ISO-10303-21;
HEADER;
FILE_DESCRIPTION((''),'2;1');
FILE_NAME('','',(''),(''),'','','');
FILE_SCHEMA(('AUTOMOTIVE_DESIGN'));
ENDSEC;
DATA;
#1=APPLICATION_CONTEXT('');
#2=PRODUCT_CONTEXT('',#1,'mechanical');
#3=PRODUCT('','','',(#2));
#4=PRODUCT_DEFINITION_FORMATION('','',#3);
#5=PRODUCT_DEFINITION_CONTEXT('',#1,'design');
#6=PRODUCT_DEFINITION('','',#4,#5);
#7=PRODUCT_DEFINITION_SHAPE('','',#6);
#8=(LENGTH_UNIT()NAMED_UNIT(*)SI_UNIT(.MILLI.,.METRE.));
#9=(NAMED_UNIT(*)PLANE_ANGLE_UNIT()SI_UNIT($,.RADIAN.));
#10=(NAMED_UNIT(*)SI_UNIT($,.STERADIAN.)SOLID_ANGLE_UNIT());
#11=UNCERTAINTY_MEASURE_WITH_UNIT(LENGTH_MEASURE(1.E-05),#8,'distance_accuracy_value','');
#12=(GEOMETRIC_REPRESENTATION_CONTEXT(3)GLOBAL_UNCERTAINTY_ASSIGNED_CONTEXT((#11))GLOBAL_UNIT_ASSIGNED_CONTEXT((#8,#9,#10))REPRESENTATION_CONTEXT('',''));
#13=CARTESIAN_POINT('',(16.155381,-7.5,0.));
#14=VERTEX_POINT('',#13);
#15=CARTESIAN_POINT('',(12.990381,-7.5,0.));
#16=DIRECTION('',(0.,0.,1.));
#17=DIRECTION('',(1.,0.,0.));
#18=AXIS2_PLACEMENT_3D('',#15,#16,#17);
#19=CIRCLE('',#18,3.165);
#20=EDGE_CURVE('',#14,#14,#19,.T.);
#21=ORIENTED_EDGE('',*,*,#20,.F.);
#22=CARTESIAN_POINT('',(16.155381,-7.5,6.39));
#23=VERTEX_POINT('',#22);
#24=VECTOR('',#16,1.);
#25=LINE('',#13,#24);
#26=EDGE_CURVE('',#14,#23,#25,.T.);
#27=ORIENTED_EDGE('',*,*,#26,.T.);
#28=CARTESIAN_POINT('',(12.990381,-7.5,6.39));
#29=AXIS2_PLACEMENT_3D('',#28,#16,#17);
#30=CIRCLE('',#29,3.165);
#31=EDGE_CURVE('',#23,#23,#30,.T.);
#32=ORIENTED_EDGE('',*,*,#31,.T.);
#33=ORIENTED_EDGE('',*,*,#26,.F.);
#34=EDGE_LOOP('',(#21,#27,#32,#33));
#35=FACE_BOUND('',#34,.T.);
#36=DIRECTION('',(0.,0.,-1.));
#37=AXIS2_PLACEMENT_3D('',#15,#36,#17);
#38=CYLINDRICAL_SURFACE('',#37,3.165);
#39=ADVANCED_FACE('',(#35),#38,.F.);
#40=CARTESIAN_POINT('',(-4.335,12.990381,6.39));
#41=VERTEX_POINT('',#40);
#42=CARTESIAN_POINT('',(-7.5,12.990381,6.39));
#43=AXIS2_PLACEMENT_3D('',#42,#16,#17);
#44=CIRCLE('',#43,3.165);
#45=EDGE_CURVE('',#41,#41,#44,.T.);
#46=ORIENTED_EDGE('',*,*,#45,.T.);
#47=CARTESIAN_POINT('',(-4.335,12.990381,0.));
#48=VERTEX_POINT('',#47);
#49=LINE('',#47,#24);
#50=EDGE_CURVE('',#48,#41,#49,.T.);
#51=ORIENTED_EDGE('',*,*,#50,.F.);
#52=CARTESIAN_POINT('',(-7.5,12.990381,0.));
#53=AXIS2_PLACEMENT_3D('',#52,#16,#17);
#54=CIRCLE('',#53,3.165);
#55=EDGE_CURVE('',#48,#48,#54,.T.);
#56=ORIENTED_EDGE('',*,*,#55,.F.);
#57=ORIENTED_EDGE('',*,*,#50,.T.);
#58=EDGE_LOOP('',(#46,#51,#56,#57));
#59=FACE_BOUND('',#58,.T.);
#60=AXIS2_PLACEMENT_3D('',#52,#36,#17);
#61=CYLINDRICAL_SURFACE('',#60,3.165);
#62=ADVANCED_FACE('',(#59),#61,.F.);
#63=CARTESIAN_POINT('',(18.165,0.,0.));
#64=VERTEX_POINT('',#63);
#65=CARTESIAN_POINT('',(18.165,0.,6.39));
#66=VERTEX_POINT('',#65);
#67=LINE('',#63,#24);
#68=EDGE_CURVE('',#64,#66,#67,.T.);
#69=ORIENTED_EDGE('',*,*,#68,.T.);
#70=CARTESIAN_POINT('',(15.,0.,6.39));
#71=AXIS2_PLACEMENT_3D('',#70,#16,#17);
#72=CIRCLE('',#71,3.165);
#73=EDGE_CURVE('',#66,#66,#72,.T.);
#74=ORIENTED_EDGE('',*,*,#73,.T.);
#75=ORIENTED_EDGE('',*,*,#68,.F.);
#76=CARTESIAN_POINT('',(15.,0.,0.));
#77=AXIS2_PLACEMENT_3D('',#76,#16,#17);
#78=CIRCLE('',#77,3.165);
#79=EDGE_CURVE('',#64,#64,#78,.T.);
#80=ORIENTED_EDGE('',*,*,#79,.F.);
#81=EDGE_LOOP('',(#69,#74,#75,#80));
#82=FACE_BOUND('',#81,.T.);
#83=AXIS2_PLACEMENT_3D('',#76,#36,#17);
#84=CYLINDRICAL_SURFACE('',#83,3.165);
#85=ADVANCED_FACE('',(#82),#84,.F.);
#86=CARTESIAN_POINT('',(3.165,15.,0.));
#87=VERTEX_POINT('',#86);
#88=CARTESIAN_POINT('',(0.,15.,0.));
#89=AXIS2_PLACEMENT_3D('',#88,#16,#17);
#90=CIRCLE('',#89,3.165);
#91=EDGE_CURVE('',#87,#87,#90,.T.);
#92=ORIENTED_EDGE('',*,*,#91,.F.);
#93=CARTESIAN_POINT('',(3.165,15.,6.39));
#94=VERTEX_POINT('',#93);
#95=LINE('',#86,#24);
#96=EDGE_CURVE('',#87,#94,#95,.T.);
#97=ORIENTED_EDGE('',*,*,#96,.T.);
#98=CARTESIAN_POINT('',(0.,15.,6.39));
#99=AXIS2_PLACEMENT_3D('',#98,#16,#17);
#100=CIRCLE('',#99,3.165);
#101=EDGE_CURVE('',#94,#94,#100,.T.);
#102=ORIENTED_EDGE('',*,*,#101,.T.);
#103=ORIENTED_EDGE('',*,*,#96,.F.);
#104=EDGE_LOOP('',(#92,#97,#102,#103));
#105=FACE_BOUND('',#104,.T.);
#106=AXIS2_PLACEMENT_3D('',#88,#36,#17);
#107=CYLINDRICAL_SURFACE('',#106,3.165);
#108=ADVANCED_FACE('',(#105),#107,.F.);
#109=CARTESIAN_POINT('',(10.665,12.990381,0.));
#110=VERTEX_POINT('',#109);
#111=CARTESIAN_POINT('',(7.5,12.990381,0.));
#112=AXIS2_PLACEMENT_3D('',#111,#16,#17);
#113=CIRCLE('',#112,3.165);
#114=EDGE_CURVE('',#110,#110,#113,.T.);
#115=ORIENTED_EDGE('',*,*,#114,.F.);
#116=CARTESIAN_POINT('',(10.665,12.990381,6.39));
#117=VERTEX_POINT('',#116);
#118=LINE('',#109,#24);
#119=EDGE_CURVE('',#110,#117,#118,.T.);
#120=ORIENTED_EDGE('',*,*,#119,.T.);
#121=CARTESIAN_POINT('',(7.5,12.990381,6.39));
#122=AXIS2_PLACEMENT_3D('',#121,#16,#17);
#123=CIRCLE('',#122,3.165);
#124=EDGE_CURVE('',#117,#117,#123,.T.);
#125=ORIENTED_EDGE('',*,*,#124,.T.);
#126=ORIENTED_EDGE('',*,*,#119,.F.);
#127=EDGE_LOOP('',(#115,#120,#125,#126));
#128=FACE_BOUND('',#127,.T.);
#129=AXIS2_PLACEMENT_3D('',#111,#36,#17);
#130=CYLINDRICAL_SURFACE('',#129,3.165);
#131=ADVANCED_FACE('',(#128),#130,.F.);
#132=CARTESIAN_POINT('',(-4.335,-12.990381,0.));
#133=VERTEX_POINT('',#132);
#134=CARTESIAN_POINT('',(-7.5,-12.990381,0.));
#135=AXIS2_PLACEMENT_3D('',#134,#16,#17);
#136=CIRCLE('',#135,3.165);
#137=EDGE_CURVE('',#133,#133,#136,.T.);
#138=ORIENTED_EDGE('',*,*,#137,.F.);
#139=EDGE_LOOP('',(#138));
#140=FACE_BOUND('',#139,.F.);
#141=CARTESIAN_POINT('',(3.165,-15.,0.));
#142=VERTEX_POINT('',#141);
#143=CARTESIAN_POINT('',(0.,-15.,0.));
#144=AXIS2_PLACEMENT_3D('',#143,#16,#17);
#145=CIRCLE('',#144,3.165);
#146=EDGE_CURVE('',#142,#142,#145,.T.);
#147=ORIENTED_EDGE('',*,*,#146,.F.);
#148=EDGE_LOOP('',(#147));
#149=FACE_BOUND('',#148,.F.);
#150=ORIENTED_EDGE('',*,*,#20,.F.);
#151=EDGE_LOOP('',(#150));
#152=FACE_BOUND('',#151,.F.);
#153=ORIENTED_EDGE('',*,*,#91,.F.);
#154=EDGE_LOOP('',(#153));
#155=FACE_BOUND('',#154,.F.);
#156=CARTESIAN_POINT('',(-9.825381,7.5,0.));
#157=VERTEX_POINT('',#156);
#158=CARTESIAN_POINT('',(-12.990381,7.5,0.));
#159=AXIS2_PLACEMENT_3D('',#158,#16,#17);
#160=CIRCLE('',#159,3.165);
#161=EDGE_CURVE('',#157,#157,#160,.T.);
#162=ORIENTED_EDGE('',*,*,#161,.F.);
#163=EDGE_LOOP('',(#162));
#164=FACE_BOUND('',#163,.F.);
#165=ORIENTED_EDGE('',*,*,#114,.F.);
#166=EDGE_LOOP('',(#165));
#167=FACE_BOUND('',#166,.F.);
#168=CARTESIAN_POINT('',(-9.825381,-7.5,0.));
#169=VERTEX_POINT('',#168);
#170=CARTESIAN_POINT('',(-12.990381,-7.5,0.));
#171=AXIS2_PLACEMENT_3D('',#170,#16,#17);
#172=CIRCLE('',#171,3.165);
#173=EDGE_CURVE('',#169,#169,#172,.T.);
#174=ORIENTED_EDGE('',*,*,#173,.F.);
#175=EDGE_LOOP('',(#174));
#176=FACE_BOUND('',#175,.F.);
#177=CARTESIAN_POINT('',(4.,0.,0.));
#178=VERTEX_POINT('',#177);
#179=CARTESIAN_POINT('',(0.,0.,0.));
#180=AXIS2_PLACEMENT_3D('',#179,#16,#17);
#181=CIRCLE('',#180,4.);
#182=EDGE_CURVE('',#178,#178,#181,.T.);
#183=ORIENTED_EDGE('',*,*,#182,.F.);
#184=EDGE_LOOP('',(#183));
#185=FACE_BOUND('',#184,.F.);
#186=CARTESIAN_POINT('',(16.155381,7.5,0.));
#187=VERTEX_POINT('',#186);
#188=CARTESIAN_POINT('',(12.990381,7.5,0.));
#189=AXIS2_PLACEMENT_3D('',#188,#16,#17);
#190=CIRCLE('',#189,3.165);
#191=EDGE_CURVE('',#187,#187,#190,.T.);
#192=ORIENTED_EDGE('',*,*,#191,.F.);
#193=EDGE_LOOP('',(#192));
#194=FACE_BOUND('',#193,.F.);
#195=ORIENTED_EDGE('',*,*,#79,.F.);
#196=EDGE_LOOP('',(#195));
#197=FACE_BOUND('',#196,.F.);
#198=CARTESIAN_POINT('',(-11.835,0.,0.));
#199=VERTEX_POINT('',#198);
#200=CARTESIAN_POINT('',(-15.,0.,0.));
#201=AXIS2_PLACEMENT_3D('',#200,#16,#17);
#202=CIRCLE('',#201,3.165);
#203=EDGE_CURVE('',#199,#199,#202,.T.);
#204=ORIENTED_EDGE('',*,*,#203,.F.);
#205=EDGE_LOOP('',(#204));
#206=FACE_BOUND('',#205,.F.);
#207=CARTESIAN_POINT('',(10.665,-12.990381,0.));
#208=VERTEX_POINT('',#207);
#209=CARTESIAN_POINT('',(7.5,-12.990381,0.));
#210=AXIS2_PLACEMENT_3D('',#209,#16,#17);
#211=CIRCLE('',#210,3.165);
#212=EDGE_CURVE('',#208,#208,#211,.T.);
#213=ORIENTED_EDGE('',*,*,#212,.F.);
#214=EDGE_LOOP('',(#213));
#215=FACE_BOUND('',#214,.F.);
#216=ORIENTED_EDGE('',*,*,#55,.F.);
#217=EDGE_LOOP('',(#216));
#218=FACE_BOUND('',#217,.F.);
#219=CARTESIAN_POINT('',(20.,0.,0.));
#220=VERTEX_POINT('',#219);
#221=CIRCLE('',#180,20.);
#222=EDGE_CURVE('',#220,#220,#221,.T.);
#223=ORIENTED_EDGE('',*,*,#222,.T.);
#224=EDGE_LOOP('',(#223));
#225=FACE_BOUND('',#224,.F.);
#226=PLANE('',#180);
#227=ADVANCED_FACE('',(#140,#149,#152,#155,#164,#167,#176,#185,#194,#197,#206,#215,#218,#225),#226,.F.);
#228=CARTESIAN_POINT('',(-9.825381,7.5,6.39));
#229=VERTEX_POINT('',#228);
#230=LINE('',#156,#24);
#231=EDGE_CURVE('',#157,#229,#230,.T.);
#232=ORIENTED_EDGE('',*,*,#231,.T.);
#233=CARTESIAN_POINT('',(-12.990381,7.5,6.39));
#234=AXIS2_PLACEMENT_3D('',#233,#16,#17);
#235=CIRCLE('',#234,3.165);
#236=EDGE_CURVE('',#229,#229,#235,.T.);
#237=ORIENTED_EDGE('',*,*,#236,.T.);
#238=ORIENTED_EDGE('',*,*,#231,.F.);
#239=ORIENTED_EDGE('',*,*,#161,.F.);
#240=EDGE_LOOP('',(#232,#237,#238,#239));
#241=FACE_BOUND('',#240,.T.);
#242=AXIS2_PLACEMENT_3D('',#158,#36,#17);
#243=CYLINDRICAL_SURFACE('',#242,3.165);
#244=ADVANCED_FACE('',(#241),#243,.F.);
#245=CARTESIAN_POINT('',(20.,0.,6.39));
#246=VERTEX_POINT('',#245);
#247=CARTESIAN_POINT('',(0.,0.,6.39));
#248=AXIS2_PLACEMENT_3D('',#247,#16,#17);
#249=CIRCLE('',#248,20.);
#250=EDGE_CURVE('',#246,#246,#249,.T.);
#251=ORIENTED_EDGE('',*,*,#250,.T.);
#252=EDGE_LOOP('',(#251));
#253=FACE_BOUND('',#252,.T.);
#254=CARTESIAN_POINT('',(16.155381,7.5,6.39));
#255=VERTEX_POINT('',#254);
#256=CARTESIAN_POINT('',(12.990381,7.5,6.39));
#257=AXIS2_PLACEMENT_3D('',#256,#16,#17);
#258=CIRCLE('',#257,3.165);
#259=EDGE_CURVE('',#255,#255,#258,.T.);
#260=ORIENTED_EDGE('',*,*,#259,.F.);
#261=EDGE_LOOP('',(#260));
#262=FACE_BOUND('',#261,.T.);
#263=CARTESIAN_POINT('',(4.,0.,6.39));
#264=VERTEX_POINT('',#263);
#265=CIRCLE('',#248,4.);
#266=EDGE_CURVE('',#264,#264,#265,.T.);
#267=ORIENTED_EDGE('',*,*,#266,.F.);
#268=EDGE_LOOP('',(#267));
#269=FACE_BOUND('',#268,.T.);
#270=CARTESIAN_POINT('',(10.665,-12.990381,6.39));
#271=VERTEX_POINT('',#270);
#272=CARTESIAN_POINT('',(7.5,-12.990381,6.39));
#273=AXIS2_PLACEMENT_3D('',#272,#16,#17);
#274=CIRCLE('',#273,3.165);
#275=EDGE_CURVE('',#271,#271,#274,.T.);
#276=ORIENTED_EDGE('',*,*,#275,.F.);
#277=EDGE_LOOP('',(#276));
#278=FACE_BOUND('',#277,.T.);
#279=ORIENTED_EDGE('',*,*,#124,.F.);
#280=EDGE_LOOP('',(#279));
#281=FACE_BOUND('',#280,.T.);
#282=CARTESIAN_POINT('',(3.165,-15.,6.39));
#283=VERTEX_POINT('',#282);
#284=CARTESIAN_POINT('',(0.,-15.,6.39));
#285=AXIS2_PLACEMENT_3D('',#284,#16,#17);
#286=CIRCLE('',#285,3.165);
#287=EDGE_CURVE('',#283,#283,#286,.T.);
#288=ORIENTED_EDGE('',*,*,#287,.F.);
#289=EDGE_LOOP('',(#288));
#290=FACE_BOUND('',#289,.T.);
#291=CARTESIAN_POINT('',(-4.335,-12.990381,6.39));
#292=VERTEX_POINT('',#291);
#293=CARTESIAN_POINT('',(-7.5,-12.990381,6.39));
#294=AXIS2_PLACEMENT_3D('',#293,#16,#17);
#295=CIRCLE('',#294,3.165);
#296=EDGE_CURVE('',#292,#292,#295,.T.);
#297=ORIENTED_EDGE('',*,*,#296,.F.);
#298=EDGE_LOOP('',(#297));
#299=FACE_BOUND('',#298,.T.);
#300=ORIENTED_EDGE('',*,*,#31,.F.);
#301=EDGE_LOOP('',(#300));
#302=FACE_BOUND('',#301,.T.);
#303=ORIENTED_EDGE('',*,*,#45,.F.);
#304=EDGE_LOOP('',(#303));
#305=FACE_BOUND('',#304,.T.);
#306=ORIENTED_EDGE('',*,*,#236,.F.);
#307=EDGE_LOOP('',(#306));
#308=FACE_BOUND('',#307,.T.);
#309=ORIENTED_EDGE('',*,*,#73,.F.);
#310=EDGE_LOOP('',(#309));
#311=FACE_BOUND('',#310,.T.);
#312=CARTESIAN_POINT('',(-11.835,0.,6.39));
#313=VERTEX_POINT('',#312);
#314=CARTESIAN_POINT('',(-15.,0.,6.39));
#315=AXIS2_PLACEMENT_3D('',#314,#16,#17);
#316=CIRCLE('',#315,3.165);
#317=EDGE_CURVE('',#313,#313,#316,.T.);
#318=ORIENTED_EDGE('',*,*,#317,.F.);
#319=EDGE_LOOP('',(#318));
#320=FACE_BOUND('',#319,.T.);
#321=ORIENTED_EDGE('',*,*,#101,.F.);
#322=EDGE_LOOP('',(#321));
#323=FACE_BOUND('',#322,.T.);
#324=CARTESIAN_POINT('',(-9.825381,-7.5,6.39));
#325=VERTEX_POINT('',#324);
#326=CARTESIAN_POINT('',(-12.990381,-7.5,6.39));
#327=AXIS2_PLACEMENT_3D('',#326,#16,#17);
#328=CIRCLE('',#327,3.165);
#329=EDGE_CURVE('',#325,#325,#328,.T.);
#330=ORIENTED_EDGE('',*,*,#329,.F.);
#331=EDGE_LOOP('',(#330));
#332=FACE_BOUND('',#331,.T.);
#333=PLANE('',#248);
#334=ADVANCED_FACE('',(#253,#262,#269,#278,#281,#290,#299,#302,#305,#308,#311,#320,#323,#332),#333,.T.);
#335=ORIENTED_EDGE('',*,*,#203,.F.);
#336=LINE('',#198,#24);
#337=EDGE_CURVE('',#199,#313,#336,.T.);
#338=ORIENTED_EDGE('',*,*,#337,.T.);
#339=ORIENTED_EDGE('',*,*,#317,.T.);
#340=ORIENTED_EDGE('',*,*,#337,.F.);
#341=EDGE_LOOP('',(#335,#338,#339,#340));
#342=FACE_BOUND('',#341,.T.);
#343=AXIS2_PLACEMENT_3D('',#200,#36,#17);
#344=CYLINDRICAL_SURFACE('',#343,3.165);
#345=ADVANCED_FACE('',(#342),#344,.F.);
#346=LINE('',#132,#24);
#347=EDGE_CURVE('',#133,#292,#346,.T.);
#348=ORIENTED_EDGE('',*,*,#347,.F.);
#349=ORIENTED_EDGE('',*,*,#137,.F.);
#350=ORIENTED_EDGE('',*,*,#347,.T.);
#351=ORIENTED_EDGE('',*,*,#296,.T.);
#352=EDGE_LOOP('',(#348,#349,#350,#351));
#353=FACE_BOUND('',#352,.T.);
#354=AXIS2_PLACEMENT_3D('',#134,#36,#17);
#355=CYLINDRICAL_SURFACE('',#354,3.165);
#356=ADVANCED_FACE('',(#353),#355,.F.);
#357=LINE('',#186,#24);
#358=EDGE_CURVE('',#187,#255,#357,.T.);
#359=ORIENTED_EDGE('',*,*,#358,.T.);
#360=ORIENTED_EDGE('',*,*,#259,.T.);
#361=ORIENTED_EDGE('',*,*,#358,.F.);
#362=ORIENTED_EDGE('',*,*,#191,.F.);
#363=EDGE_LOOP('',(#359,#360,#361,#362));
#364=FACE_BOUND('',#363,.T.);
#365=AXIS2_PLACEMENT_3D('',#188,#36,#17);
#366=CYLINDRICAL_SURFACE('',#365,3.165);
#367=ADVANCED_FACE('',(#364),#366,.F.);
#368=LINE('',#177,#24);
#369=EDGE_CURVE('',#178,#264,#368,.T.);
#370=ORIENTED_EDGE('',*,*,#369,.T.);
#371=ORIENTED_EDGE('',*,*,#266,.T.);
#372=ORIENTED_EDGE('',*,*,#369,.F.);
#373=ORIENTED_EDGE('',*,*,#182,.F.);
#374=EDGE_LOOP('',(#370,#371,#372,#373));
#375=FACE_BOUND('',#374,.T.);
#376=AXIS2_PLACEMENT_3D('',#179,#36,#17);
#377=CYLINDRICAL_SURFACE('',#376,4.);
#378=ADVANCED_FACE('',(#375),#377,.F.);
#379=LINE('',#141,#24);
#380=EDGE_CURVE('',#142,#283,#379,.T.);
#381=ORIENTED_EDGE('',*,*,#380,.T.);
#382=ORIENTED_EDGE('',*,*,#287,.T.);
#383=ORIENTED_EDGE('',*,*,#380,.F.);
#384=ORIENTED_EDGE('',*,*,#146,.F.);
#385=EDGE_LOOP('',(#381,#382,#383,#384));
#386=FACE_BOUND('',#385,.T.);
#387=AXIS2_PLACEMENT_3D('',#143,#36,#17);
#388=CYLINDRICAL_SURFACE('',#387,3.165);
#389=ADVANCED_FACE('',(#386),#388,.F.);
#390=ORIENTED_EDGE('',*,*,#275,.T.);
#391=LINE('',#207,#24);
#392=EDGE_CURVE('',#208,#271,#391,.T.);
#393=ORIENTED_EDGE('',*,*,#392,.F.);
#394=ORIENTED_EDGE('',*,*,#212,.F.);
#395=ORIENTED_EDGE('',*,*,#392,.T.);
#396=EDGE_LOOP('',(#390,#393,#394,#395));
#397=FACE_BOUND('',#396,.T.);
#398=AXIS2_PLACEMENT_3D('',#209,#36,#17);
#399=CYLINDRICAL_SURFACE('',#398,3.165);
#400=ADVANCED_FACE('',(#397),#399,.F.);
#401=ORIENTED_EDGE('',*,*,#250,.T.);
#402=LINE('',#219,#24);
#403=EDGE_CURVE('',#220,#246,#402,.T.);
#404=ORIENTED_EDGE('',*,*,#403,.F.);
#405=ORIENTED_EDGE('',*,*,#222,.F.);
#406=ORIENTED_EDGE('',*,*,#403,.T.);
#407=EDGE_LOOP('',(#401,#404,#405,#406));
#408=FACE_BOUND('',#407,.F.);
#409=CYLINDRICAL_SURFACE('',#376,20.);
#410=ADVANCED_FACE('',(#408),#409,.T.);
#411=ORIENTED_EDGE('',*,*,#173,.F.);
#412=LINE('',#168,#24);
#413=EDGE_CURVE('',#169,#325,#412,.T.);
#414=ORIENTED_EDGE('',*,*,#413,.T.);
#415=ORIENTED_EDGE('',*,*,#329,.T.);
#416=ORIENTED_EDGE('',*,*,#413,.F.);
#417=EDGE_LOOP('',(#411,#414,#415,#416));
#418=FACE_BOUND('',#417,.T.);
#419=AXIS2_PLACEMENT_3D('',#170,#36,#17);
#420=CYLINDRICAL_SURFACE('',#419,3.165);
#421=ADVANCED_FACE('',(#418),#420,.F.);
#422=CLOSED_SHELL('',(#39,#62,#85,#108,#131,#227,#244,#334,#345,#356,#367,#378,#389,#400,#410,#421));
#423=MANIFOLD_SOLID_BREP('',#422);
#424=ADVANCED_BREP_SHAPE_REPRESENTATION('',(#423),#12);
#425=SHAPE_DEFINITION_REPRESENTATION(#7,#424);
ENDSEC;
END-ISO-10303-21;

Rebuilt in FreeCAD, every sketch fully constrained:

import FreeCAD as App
import Part
import Sketcher
Q = App.Units.Quantity

doc = App.newDocument("Part")
body = doc.addObject("PartDesign::Body", "Body")

sketch1 = body.newObject("Sketcher::SketchObject", "Sketch")
sketch1.AttachmentSupport = (doc.getObject("XY_Plane"), [""])
sketch1.MapMode = "FlatFace"
sketch1.addGeometry([
    Part.Circle(App.Vector(0, 0, 0), App.Vector(0, 0, 1), 20),
    Part.Circle(App.Vector(-7.5, -13, 0), App.Vector(0, 0, 1), 3.2),
    Part.Circle(App.Vector(-13, -7.5, 0), App.Vector(0, 0, 1), 3.2),
    Part.Circle(App.Vector(0, -15, 0), App.Vector(0, 0, 1), 3.2),
    Part.Circle(App.Vector(7.5, -13, 0), App.Vector(0, 0, 1), 3.2),
    Part.Circle(App.Vector(13, -7.5, 0), App.Vector(0, 0, 1), 3.2),
    Part.Circle(App.Vector(-15, 0, 0), App.Vector(0, 0, 1), 3.2),
    Part.Circle(App.Vector(-13, 7.5, 0), App.Vector(0, 0, 1), 3.2),
    Part.Circle(App.Vector(-7.5, 13, 0), App.Vector(0, 0, 1), 3.2),
    Part.Circle(App.Vector(0, 0, 0), App.Vector(0, 0, 1), 4),
    Part.Circle(App.Vector(15, 0, 0), App.Vector(0, 0, 1), 3.2),
    Part.Circle(App.Vector(13, 7.5, 0), App.Vector(0, 0, 1), 3.2),
    Part.Circle(App.Vector(7.5, 13, 0), App.Vector(0, 0, 1), 3.2),
    Part.Circle(App.Vector(0, 15, 0), App.Vector(0, 0, 1), 3.2),
], False)
sketch1.addConstraint([
    Sketcher.Constraint("Coincident", 0, 3, -1, 1),
    Sketcher.Constraint("Coincident", 9, 3, -1, 1),
    Sketcher.Constraint("Equal", 1, 2),
    Sketcher.Constraint("Equal", 2, 3),
    Sketcher.Constraint("Equal", 3, 4),
    Sketcher.Constraint("Equal", 4, 5),
    Sketcher.Constraint("Equal", 5, 6),
    Sketcher.Constraint("Equal", 6, 7),
    Sketcher.Constraint("Equal", 7, 8),
    Sketcher.Constraint("Equal", 8, 10),
    Sketcher.Constraint("Equal", 10, 11),
    Sketcher.Constraint("Equal", 11, 12),
    Sketcher.Constraint("Equal", 12, 13),
    Sketcher.Constraint("Symmetric", 5, 3, 7, 3, -1, 1),
    Sketcher.Constraint("Symmetric", 4, 3, 8, 3, -1, 1),
    Sketcher.Constraint("Symmetric", 6, 3, 10, 3, -1, 1),
    Sketcher.Constraint("Symmetric", 2, 3, 11, 3, -1, 1),
    Sketcher.Constraint("Symmetric", 1, 3, 12, 3, -1, 1),
    Sketcher.Constraint("Symmetric", 3, 3, 13, 3, -1, 1),
    Sketcher.Constraint("Symmetric", 1, 3, 4, 3, -2),
    Sketcher.Constraint("Symmetric", 2, 3, 5, 3, -2),
    Sketcher.Constraint("PointOnObject", 3, 3, -2),
    Sketcher.Constraint("PointOnObject", 6, 3, -1),
    Sketcher.Constraint("Diameter", 0, Q("40 mm")),
    Sketcher.Constraint("Diameter", 9, Q("8 mm")),
    Sketcher.Constraint("Diameter", 1, Q("6.33 mm")),
    Sketcher.Constraint("DistanceY", 3, 3, -1, 1, Q("15 mm")),
    Sketcher.Constraint("DistanceX", 6, 3, -1, 1, Q("15 mm")),
    Sketcher.Constraint("DistanceX", 1, 3, 4, 3, Q("15 mm")),
    Sketcher.Constraint("DistanceY", 2, 3, 7, 3, Q("15 mm")),
    Sketcher.Constraint("DistanceY", 1, 3, -1, 1, Q("12.990381 mm")),
    Sketcher.Constraint("DistanceX", 2, 3, -1, 1, Q("12.990381 mm")),
])
pad1 = body.newObject("PartDesign::Pad", "Pad")
pad1.Profile = sketch1
pad1.Length = 6.39

doc.recompute()
